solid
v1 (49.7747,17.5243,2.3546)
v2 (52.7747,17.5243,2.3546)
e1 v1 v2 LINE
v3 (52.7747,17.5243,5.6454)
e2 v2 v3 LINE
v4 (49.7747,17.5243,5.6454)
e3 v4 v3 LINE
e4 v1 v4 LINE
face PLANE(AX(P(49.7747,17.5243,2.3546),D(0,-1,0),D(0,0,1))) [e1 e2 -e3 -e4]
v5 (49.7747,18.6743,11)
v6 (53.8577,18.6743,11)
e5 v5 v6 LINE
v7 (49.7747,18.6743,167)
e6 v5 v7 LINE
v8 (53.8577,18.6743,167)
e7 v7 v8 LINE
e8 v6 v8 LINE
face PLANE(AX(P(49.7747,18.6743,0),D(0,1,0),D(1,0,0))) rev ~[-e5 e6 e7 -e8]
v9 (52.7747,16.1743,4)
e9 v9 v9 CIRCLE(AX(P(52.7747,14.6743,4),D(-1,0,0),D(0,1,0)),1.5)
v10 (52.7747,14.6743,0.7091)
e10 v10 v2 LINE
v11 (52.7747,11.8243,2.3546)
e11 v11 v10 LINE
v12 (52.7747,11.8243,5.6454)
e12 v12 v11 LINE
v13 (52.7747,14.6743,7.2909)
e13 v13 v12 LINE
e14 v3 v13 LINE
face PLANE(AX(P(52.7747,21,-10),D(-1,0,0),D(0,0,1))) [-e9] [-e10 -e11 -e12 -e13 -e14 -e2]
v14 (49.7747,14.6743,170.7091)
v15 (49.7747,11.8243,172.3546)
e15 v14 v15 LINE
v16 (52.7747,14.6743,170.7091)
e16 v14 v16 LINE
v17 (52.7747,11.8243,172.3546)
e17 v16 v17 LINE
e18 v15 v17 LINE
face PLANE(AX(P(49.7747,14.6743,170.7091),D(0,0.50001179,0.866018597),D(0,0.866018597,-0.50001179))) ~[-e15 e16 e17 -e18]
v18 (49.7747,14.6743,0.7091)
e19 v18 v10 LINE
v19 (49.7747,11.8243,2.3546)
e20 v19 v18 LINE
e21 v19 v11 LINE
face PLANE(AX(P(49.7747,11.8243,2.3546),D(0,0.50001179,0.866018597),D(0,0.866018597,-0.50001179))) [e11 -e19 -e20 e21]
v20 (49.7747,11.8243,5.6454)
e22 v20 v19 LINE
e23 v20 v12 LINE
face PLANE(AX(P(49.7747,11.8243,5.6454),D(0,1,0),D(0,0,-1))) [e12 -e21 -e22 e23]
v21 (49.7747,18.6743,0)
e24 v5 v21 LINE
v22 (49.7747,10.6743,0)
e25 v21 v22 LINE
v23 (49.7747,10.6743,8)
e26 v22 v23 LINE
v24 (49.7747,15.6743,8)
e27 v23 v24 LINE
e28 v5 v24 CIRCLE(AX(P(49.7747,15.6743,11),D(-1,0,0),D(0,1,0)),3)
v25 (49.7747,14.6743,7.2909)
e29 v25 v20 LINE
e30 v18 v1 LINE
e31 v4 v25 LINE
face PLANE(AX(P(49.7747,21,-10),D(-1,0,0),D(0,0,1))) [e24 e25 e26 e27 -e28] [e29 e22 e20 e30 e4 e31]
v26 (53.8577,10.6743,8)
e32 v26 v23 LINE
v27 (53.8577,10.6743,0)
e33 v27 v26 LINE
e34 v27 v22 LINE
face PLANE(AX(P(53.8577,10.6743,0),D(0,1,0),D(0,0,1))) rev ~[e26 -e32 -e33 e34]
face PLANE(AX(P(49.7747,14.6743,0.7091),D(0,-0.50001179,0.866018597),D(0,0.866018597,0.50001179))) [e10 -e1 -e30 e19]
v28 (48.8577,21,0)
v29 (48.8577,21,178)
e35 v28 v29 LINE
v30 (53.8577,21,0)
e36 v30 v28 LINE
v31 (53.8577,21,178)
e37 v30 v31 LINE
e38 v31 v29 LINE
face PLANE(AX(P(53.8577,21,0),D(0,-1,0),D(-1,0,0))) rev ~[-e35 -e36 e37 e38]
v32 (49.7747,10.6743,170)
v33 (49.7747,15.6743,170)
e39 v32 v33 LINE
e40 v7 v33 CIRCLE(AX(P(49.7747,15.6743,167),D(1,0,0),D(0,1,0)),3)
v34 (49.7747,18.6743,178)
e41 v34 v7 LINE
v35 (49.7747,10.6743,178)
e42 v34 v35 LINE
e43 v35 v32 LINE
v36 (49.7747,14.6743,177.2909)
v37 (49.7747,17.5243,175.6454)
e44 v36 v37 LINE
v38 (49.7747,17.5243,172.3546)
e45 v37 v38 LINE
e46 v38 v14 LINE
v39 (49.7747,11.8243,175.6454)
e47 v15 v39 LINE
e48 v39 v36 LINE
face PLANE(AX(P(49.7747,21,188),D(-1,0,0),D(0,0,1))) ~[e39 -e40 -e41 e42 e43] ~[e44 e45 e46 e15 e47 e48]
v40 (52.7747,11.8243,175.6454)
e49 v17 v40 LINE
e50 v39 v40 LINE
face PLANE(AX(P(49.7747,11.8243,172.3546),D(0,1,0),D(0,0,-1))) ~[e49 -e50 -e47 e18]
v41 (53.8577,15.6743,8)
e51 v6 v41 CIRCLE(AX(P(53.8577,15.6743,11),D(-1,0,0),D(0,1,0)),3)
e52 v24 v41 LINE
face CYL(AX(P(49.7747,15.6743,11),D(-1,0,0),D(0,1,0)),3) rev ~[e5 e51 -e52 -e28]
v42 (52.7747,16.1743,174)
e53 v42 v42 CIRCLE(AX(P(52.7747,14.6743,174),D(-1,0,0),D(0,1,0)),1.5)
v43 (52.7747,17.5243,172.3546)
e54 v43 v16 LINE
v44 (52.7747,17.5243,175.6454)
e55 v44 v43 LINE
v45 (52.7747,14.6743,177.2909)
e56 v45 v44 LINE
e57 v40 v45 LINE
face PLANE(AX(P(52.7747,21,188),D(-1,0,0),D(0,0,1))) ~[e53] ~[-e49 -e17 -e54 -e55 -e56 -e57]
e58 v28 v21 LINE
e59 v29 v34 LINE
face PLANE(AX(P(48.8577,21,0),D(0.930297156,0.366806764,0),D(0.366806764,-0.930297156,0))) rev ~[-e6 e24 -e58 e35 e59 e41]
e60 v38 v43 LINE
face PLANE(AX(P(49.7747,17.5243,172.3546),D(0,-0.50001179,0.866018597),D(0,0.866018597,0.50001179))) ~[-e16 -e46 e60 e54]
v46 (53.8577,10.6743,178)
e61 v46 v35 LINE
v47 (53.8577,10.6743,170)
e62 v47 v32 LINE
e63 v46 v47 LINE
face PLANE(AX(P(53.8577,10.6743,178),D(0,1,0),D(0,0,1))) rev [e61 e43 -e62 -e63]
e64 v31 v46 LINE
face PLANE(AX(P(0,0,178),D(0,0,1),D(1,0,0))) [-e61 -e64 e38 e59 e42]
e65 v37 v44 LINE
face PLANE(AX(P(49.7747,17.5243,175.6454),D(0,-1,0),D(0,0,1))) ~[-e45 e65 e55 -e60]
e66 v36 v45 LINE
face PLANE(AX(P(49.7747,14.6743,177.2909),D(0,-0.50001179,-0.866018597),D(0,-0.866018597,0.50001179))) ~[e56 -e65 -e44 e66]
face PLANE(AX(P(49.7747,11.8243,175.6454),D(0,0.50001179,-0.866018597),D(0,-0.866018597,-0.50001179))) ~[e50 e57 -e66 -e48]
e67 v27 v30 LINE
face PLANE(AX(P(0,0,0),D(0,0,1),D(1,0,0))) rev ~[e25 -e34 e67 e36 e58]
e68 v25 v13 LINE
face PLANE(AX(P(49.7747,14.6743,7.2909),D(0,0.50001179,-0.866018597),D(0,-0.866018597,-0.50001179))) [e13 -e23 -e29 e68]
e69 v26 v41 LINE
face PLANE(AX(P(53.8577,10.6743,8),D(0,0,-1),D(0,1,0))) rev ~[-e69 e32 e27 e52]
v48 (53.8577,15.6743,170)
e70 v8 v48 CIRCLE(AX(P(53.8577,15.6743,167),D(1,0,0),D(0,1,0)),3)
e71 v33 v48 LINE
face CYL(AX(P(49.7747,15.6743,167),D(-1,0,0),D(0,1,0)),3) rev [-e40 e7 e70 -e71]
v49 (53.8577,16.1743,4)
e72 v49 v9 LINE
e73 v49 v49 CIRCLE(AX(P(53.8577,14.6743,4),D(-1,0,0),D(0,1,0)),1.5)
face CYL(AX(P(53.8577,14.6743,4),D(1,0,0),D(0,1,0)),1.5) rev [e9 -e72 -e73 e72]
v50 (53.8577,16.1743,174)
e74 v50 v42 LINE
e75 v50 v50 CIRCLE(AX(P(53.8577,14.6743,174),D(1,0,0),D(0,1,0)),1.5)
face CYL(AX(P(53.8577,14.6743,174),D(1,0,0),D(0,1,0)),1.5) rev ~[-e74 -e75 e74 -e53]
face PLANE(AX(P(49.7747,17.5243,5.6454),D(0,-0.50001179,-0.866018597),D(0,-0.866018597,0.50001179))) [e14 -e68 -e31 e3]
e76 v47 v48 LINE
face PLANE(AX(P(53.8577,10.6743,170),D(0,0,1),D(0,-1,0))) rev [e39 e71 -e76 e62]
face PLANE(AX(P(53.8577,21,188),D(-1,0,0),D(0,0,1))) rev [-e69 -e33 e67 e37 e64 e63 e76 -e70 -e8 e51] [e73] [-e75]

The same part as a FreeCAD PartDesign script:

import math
import FreeCAD as App
import Part
import Sketcher

V = App.Vector
Q = App.Units.Quantity

doc = App.newDocument("Part")
body = doc.addObject("PartDesign::Body", "Body")

# Sketch on XY plane
sketch1 = body.newObject("Sketcher::SketchObject", "Sketch")
sketch1.AttachmentSupport = (doc.getObject("XY_Plane"), [""])
sketch1.MapMode = "FlatFace"
sketch1.addGeometry([
    Part.LineSegment(V(49.8, 18.7, 0), V(53.9, 18.7, 0)),
    Part.LineSegment(V(53.9, 18.7, 0), V(53.9, 21, 0)),
    Part.LineSegment(V(53.9, 21, 0), V(48.9, 21, 0)),
    Part.LineSegment(V(48.9, 21, 0), V(49.8, 18.7, 0)),
], False)
sketch1.addConstraint([
    Sketcher.Constraint("Coincident", 0, 2, 1, 1),
    Sketcher.Constraint("Coincident", 1, 2, 2, 1),
    Sketcher.Constraint("Coincident", 2, 2, 3, 1),
    Sketcher.Constraint("Coincident", 3, 2, 0, 1),
    Sketcher.Constraint("Horizontal", 0),
    Sketcher.Constraint("Vertical", 1),
    Sketcher.Constraint("Horizontal", 2),
    Sketcher.Constraint("DistanceX", 2, 2, 2, 1, Q("5 mm")),
    Sketcher.Constraint("DistanceY", -1, 1, 1, 2, Q("21 mm")),
    Sketcher.Constraint("Distance", 3, Q("2.5 mm")),
    Sketcher.Constraint("Angle", 3, Q("-68.4812 deg")),
    Sketcher.Constraint("DistanceX", -1, 1, 0, 2, Q("53.8577 mm")),
])
pad1 = body.newObject("PartDesign::Pad", "Pad")
pad1.Profile = sketch1
pad1.Length = 178

# Sketch on YZ plane
sketch2 = body.newObject("Sketcher::SketchObject", "Sketch001")
sketch2.AttachmentSupport = (doc.getObject("YZ_Plane"), [""])
sketch2.MapMode = "FlatFace"
sketch2.AttachmentOffset = App.Placement(V(0, 0, 53.8577), App.Rotation())
sketch2.addGeometry([
    Part.LineSegment(V(18.7, 8, 0), V(18.7, 0, 0)),  # 0
    Part.LineSegment(V(18.7, 0, 0), V(10.7, 0, 0)),  # 1
    Part.LineSegment(V(10.7, 0, 0), V(10.7, 8, 0)),  # 2
    Part.LineSegment(V(10.7, 8, 0), V(18.7, 8, 0)),  # 3
    Part.Circle(V(14.7, 4, 0), V(0, 0, 1), 1.5),  # 4
], False)
sketch2.addConstraint([
    Sketcher.Constraint("Coincident", 0, 2, 1, 1),
    Sketcher.Constraint("Coincident", 1, 2, 2, 1),
    Sketcher.Constraint("Coincident", 2, 2, 3, 1),
    Sketcher.Constraint("Coincident", 3, 2, 0, 1),
    Sketcher.Constraint("Vertical", 0),
    Sketcher.Constraint("Horizontal", 1),
    Sketcher.Constraint("Vertical", 2),
    Sketcher.Constraint("Horizontal", 3),
    Sketcher.Constraint("PointOnObject", 0, 2, -1),
    Sketcher.Constraint("Equal", 3, 0),
    Sketcher.Constraint("Diameter", 4, Q("3 mm")),
    Sketcher.Constraint("DistanceX", 1, 2, 1, 1, Q("8 mm")),
    Sketcher.Constraint("DistanceY", -1, 1, 4, 3, Q("4 mm")),
    Sketcher.Constraint("DistanceX", 4, 3, 0, 2, Q("4 mm")),
    Sketcher.Constraint("DistanceX", -1, 1, 4, 3, Q("14.6743 mm")),
])
pad2 = body.newObject("PartDesign::Pad", "Pad001")
pad2.Profile = sketch2
pad2.Length = 4.083
pad2.Reversed = True

# Sketch on YZ plane
sketch3 = body.newObject("Sketcher::SketchObject", "Sketch002")
sketch3.AttachmentSupport = (doc.getObject("YZ_Plane"), [""])
sketch3.MapMode = "FlatFace"
sketch3.AttachmentOffset = App.Placement(V(0, 0, 49.7747), App.Rotation())
sketch3.addGeometry([
    Part.LineSegment(V(14.7, 0.7, 0), V(11.8, 2.4, 0)),  # 0
    Part.LineSegment(V(11.8, 2.4, 0), V(11.8, 5.6, 0)),  # 1
    Part.LineSegment(V(11.8, 5.6, 0), V(14.7, 7.3, 0)),  # 2
    Part.LineSegment(V(14.7, 7.3, 0), V(17.5, 5.6, 0)),  # 3
    Part.LineSegment(V(17.5, 5.6, 0), V(17.5, 2.4, 0)),  # 4
    Part.LineSegment(V(17.5, 2.4, 0), V(14.7, 0.7, 0)),  # 5
    Part.Circle(V(14.7, 4, 0), V(0, 0, 1), 1.5),  # 6
], False)
sketch3.addConstraint([
    Sketcher.Constraint("Coincident", 0, 2, 1, 1),
    Sketcher.Constraint("Coincident", 1, 2, 2, 1),
    Sketcher.Constraint("Coincident", 2, 2, 3, 1),
    Sketcher.Constraint("Coincident", 3, 2, 4, 1),
    Sketcher.Constraint("Coincident", 4, 2, 5, 1),
    Sketcher.Constraint("Coincident", 5, 2, 0, 1),
    Sketcher.Constraint("Vertical", 1),
    Sketcher.Constraint("Vertical", 4),
    Sketcher.Constraint("Parallel", 0, 3),
    Sketcher.Constraint("Parallel", 2, 5),
    Sketcher.Constraint("Horizontal", 1, 2, 3, 2),
    Sketcher.Constraint("Horizontal", 0, 2, 4, 2),
    Sketcher.Constraint("Vertical", 6, 3, 2, 2),
    Sketcher.Constraint("Vertical", 2, 2, 5, 2),
    Sketcher.Constraint("Diameter", 6, Q("3 mm")),
    Sketcher.Constraint("DistanceX", 1, 2, 3, 2, Q("5.7 mm")),
    Sketcher.Constraint("Angle", 0, Q("149.9992 deg")),
    Sketcher.Constraint("DistanceY", -1, 1, 6, 3, Q("4 mm")),
    Sketcher.Constraint("DistanceY", 1, 1, 1, 2, Q("3.2908 mm")),
    Sketcher.Constraint("DistanceY", -1, 1, 2, 2, Q("7.291 mm")),
    Sketcher.Constraint("DistanceX", -1, 1, 6, 3, Q("14.6743 mm")),
])
pocket1 = body.newObject("PartDesign::Pocket", "Pocket")
pocket1.Profile = sketch3
pocket1.Length = 3
pocket1.Reversed = True

# Sketch on YZ plane
sketch4 = body.newObject("Sketcher::SketchObject", "Sketch003")
sketch4.AttachmentSupport = (doc.getObject("YZ_Plane"), [""])
sketch4.MapMode = "FlatFace"
sketch4.AttachmentOffset = App.Placement(V(0, 0, 49.7747), App.Rotation())
sketch4.addGeometry([
    Part.LineSegment(V(18.7, 11, 0), V(18.7, 8, 0)),
    Part.LineSegment(V(18.7, 8, 0), V(15.7, 8, 0)),
    Part.ArcOfCircle(Part.Circle(V(15.7, 11, 0), V(0, 0, 1), 3), math.radians(-90), math.radians(0)),
], False)
sketch4.addConstraint([
    Sketcher.Constraint("Coincident", 0, 2, 1, 1),
    Sketcher.Constraint("Tangent", 1, 2, 2, 1),
    Sketcher.Constraint("Tangent", 2, 2, 0, 1),
    Sketcher.Constraint("Vertical", 0),
    Sketcher.Constraint("Horizontal", 1),
    Sketcher.Constraint("Radius", 2, Q("3 mm")),
    Sketcher.Constraint("DistanceY", -1, 1, 2, 3, Q("11 mm")),
    Sketcher.Constraint("DistanceX", -1, 1, 2, 3, Q("15.6743 mm")),
])
pad3 = body.newObject("PartDesign::Pad", "Pad002")
pad3.Profile = sketch4
pad3.Length = 4.083
doc.recompute()

datumplane = body.newObject("PartDesign::Plane", "DatumPlane")
datumplane.AttachmentSupport = (doc.getObject("XY_Plane"), [""])
datumplane.MapMode = "FlatFace"
datumplane.AttachmentOffset = App.Placement(V(0, 0, 89), App.Rotation())
mirrored = body.newObject("PartDesign::Mirrored", "Mirrored")
mirrored.Originals = [pad2, pad3]
mirrored.MirrorPlane = (datumplane, [""])
body.Tip = mirrored
doc.recompute()

datumplane2 = body.newObject("PartDesign::Plane", "DatumPlane001")
datumplane2.AttachmentSupport = (doc.getObject("XY_Plane"), [""])
datumplane2.MapMode = "FlatFace"
datumplane2.AttachmentOffset = App.Placement(V(0, 0, 89), App.Rotation())
mirrored2 = body.newObject("PartDesign::Mirrored", "Mirrored001")
mirrored2.Originals = [pocket1]
mirrored2.MirrorPlane = (datumplane2, [""])
body.Tip = mirrored2

doc.recompute()
